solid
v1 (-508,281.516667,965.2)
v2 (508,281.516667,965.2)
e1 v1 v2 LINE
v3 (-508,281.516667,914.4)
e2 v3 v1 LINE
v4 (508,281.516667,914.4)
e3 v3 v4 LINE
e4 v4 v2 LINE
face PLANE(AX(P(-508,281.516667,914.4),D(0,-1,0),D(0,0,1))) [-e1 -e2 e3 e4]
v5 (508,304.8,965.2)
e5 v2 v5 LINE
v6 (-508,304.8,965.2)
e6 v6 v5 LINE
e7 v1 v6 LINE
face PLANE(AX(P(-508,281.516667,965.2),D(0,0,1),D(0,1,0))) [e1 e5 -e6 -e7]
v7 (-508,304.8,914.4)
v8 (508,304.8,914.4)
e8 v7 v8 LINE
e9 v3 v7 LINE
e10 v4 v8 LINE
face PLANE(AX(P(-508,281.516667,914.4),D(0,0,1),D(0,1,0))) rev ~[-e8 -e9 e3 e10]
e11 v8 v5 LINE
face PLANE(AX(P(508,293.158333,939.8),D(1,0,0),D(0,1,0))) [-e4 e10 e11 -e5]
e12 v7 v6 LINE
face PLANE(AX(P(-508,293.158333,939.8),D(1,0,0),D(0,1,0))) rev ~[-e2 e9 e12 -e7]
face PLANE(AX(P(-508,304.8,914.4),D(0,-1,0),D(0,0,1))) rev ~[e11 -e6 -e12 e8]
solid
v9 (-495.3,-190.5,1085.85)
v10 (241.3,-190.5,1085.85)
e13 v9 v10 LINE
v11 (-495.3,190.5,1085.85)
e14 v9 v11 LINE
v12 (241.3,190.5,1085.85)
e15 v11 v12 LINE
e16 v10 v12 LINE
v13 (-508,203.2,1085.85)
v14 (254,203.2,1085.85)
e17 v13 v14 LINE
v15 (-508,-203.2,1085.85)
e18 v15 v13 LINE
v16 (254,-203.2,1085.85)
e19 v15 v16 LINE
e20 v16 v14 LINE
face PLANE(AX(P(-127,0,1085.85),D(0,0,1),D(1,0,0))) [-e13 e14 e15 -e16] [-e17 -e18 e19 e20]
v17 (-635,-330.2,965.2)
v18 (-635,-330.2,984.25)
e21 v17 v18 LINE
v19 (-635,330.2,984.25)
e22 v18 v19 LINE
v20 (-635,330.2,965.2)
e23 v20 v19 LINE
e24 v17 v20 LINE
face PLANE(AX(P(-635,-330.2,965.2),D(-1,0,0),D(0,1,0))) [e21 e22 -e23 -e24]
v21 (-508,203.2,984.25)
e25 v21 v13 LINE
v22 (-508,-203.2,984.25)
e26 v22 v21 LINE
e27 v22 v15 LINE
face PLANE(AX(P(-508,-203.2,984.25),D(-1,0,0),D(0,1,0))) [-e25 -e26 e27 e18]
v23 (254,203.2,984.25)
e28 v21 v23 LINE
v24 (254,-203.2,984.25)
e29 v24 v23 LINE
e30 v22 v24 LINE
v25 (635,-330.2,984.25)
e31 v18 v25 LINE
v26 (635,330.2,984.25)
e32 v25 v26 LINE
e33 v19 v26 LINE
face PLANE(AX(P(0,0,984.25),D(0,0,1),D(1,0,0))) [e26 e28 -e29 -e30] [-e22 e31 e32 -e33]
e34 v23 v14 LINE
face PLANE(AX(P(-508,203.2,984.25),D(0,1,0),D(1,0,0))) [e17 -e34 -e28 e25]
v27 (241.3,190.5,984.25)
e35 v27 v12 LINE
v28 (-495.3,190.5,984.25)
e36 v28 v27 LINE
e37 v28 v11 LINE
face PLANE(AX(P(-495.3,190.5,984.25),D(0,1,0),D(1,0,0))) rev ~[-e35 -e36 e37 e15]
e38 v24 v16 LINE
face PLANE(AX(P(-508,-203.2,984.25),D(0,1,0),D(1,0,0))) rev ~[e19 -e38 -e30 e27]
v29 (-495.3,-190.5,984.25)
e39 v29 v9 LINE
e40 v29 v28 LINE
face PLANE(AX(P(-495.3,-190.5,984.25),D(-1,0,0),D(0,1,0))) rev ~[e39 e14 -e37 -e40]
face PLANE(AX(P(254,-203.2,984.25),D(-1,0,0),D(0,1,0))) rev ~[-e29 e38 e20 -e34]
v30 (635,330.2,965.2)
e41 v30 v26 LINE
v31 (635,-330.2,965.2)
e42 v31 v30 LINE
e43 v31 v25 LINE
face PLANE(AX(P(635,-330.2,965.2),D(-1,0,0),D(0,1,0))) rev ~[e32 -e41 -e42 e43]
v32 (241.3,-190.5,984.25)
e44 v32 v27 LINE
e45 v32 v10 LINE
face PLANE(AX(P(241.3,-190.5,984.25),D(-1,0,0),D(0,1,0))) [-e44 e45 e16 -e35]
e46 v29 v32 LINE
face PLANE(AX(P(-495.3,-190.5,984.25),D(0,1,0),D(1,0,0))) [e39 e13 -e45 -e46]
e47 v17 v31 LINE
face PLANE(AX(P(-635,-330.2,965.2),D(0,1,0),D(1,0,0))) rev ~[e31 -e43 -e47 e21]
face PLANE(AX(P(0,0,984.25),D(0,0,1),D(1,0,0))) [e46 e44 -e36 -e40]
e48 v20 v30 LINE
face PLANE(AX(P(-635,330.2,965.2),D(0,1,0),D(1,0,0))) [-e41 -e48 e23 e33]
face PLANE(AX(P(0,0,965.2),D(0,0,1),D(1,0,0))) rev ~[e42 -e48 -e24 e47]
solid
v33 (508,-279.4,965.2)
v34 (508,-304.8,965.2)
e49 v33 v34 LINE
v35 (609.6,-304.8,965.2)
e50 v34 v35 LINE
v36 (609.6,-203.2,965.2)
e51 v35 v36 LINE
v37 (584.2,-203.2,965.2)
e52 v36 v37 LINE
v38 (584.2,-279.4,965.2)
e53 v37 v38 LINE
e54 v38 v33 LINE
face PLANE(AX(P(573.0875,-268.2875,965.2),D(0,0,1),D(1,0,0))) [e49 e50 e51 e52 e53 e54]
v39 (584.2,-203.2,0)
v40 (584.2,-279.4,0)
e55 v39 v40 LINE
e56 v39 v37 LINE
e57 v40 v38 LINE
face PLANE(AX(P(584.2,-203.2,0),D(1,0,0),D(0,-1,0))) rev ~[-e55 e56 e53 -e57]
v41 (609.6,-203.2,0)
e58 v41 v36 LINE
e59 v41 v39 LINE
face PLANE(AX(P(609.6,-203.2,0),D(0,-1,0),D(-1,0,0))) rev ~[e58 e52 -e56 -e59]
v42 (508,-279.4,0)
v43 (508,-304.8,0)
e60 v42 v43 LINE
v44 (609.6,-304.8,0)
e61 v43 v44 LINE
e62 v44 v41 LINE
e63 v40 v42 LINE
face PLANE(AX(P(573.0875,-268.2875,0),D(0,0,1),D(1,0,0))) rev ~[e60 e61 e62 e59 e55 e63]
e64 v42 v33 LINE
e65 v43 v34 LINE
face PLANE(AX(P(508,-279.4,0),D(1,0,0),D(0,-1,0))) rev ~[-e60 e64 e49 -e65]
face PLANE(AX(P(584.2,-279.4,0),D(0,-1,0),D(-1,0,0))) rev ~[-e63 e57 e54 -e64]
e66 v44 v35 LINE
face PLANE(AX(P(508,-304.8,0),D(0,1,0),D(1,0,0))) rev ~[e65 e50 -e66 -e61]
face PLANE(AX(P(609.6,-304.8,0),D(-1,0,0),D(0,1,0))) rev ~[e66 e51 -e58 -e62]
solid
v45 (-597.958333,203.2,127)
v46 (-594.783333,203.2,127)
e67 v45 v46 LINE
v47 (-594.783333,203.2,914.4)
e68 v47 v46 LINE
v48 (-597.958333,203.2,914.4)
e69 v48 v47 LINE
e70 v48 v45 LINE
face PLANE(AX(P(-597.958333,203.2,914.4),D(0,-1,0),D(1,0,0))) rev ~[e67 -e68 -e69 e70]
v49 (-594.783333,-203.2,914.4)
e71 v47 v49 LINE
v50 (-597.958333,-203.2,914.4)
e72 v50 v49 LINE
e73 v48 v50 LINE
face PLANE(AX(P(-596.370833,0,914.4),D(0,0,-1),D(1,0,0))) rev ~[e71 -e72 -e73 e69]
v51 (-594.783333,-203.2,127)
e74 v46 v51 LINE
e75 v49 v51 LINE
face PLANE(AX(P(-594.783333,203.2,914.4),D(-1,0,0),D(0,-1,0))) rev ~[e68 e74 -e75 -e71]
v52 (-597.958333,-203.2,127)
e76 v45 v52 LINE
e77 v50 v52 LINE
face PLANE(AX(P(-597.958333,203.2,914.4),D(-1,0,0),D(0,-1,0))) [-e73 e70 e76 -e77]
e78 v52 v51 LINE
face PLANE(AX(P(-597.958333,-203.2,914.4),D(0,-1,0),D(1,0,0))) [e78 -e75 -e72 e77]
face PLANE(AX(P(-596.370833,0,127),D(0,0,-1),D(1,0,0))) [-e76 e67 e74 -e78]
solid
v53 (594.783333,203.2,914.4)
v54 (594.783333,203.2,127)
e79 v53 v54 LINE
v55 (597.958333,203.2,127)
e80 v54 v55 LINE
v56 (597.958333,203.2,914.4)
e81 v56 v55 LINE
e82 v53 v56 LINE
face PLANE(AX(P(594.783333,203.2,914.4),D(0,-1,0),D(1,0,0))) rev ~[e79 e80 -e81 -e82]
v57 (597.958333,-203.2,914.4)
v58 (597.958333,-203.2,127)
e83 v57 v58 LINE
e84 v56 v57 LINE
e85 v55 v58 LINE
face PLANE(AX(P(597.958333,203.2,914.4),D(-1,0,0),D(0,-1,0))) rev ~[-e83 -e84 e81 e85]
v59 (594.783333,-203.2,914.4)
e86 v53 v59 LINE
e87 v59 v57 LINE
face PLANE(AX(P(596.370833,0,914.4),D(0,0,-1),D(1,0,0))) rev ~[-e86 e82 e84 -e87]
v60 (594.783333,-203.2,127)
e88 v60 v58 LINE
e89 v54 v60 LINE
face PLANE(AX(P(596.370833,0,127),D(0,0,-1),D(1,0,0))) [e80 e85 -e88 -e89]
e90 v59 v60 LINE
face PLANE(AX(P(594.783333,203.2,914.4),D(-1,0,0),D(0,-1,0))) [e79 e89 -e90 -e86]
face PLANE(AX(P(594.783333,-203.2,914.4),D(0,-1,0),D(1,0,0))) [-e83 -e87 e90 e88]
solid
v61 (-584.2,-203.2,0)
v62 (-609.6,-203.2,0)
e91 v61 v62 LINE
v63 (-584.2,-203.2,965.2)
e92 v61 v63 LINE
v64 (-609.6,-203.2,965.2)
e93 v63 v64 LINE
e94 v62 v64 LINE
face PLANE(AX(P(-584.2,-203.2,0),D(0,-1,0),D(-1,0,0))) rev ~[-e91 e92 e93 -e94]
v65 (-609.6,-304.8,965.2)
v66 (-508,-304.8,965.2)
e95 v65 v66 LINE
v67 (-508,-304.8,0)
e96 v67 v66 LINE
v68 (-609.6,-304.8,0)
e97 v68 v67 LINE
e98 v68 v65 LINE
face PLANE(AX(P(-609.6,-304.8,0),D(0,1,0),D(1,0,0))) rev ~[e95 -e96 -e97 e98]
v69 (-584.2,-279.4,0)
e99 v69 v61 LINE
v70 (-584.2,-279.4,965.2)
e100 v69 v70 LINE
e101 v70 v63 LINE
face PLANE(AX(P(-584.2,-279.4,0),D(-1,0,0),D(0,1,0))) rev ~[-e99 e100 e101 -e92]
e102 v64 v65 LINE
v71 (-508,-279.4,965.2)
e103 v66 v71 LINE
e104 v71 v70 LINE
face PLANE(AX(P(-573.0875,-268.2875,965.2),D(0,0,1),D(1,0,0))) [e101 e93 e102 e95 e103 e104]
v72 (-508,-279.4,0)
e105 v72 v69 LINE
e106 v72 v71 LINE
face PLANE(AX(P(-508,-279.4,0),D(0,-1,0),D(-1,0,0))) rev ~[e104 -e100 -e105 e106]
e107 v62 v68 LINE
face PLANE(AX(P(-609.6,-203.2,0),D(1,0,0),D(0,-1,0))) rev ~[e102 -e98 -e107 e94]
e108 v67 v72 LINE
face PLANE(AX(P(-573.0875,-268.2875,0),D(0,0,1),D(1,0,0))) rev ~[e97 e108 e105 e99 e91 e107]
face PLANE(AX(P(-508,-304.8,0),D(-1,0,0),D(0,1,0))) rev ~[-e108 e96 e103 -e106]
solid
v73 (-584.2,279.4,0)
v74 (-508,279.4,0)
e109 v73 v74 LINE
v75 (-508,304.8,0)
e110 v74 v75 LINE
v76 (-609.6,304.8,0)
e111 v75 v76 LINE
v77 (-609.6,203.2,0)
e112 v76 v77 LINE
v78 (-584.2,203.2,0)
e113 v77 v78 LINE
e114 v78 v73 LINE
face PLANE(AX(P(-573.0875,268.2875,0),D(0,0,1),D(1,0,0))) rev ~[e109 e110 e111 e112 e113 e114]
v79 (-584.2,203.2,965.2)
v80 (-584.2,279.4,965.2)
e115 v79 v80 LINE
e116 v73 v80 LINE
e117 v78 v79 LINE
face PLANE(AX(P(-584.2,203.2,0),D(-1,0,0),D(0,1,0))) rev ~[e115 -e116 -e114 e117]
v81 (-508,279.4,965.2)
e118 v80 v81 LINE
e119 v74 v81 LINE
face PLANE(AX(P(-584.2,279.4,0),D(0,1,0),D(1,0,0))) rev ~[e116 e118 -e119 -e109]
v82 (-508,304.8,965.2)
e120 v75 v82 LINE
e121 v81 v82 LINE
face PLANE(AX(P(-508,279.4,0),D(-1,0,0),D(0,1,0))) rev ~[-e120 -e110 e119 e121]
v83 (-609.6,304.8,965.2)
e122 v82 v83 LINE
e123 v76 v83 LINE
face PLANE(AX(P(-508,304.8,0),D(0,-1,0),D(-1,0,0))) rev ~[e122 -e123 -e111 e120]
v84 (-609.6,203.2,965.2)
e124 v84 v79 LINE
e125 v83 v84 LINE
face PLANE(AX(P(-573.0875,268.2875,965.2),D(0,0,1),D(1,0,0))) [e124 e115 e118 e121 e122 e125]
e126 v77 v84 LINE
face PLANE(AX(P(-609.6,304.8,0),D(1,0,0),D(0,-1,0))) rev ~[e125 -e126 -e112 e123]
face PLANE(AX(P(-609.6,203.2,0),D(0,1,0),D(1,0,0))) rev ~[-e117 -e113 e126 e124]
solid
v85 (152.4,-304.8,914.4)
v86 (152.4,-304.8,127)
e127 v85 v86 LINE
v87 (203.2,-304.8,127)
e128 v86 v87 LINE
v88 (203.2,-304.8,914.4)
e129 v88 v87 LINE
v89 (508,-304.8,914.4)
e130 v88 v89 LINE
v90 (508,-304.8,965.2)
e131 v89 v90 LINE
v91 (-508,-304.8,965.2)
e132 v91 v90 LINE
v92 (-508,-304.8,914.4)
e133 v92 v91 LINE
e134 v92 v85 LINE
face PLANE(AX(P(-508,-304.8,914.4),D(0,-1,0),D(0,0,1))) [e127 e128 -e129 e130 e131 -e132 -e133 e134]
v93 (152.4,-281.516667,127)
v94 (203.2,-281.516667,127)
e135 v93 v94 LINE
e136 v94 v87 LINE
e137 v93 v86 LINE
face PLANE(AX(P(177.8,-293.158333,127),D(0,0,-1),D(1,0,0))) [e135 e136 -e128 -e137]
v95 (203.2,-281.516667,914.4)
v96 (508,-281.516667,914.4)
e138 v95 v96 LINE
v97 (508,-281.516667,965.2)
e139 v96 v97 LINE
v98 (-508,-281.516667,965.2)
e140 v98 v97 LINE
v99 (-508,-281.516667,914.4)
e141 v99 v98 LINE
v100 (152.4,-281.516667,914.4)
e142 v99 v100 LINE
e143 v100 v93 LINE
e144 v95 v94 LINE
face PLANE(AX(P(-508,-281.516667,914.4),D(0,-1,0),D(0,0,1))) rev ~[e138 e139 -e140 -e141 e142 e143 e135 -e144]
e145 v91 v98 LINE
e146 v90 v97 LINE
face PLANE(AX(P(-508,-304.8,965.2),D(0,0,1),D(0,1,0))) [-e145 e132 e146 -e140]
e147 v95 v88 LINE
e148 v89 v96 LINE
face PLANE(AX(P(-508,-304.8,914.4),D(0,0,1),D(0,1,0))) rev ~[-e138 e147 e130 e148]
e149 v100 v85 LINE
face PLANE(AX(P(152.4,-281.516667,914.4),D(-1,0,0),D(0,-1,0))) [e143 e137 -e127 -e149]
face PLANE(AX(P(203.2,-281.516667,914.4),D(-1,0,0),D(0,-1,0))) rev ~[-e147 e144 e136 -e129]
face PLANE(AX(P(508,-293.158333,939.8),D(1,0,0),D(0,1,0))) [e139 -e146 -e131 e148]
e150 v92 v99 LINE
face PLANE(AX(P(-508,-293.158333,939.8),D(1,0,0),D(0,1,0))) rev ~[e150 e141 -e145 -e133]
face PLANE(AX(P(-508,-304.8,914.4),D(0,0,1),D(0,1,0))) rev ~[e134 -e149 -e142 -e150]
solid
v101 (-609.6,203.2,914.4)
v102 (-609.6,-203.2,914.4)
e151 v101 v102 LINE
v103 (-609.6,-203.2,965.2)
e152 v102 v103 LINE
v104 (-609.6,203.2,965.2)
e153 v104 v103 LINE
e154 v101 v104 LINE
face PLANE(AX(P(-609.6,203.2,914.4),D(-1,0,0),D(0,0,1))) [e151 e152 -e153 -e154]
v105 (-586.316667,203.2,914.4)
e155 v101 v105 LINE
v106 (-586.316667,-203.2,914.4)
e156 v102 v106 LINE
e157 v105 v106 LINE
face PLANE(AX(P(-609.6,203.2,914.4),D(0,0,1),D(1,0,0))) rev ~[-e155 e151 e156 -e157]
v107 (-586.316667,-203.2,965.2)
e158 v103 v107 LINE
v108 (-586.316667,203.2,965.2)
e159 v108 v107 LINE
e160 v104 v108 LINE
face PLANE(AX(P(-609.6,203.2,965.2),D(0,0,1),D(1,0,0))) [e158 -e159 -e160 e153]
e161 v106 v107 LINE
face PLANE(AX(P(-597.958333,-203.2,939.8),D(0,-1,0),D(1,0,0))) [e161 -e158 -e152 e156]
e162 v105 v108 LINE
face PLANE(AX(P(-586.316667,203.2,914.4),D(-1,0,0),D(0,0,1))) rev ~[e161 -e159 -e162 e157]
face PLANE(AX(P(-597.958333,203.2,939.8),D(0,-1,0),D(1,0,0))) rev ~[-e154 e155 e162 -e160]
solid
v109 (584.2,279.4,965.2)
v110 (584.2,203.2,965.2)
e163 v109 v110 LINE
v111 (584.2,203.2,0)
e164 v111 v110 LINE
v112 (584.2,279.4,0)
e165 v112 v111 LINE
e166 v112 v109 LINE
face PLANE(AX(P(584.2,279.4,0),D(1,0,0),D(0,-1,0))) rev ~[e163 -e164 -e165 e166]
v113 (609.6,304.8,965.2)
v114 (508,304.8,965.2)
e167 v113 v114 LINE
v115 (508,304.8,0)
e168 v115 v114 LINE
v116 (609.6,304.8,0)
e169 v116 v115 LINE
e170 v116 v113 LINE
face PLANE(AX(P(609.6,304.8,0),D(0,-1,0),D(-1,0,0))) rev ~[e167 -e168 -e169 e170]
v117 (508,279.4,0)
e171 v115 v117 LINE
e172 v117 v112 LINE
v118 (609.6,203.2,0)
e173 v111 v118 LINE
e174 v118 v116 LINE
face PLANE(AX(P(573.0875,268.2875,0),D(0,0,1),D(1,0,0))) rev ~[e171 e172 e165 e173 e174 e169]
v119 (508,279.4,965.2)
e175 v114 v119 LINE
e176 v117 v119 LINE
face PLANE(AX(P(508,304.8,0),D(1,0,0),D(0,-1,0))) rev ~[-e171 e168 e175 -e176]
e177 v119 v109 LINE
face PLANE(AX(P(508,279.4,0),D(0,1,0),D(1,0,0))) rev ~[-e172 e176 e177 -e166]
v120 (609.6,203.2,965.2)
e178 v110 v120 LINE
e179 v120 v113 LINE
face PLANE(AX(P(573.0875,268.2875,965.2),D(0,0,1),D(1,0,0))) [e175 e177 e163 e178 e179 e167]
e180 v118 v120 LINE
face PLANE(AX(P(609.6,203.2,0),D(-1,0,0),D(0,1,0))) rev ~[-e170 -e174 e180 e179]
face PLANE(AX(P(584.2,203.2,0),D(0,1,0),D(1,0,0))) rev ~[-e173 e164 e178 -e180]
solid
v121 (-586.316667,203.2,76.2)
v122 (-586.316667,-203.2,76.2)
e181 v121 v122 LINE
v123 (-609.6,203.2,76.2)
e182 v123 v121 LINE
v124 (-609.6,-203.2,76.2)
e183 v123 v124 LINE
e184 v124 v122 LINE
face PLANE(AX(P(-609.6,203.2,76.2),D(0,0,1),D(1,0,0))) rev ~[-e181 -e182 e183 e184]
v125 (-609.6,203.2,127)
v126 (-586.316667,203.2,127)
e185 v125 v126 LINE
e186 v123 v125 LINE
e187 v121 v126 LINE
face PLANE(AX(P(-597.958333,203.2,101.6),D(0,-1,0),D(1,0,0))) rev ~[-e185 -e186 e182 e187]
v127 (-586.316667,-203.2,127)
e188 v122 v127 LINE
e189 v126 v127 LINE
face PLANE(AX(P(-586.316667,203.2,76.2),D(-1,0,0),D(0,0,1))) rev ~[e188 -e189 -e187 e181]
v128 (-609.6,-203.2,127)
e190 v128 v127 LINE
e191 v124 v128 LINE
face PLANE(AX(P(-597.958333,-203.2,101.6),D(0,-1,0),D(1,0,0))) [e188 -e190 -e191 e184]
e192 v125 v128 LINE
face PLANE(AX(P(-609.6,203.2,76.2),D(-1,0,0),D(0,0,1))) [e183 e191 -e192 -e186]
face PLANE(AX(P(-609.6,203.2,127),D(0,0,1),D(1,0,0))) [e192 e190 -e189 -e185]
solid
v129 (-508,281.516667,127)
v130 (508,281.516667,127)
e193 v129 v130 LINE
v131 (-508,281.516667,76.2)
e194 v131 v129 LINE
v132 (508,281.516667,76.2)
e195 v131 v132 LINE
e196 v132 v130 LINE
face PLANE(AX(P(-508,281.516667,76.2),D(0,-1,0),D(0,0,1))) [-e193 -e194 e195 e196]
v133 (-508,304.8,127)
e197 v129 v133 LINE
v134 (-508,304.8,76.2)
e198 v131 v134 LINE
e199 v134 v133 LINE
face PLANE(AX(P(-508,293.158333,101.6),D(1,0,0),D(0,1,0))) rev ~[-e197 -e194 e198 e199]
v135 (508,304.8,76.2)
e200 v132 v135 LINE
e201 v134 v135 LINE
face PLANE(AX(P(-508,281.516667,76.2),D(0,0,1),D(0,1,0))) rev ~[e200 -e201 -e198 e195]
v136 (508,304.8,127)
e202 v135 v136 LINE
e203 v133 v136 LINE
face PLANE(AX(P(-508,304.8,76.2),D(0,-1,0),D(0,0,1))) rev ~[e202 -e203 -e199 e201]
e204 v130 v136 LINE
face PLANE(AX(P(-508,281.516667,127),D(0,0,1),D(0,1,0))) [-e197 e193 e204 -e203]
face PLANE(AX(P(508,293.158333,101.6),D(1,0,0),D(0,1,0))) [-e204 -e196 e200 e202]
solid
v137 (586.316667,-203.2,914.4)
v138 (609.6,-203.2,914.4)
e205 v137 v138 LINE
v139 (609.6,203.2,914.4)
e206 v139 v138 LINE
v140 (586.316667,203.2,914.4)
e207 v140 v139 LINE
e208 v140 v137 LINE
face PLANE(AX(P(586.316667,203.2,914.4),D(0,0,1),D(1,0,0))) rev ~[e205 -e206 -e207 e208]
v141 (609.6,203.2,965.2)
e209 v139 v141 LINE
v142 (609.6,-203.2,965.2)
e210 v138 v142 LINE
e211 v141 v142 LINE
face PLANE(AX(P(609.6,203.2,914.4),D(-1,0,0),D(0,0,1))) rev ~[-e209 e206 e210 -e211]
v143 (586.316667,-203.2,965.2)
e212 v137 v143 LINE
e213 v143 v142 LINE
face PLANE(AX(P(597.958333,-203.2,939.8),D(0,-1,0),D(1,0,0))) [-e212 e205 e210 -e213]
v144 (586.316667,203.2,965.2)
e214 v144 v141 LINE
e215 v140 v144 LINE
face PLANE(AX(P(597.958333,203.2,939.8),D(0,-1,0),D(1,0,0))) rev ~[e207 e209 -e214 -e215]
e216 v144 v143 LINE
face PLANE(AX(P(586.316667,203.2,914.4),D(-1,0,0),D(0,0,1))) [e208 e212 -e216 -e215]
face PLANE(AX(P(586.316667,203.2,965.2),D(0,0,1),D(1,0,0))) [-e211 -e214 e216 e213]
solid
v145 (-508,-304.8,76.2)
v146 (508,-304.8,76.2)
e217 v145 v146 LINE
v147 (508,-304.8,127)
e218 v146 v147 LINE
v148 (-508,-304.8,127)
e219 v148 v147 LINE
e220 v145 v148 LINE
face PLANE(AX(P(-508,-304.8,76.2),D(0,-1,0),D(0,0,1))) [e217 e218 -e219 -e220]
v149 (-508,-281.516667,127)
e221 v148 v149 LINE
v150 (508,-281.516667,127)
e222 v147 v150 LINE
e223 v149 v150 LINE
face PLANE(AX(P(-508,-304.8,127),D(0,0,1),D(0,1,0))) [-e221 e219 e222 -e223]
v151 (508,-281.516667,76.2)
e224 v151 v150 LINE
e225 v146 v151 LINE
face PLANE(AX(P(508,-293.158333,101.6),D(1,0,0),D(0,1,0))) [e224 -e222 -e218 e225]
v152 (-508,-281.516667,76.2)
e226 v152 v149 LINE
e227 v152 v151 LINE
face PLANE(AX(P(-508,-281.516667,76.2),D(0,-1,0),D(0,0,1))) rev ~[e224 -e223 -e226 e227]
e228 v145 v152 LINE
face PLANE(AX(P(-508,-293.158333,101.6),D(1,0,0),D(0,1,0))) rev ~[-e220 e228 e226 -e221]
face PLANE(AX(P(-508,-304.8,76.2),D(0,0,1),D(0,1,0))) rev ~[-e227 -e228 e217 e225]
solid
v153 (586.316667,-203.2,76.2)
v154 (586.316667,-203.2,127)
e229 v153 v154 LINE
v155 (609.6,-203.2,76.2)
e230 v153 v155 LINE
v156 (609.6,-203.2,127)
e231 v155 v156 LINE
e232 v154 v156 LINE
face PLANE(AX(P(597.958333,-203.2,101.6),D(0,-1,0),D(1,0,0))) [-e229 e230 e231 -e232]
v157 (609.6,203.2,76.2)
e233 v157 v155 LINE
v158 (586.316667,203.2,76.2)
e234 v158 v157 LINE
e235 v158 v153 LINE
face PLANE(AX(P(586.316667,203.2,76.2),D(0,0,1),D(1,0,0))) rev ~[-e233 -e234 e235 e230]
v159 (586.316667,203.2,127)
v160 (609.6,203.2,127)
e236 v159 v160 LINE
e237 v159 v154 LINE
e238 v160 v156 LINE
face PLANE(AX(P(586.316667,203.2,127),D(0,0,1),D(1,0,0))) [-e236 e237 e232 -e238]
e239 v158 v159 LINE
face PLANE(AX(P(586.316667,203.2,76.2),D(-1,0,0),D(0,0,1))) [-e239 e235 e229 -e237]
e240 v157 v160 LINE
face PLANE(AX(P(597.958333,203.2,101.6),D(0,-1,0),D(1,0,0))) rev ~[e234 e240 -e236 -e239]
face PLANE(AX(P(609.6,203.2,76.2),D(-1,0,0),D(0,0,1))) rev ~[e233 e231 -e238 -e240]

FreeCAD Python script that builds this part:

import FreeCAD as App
import Part
import Sketcher
Q = App.Units.Quantity

doc = App.newDocument("Part")
body = doc.addObject("PartDesign::Body", "Body")

# Sketch on XY plane
sketch1 = body.newObject("Sketcher::SketchObject", "Sketch")
sketch1.AttachmentSupport = (doc.getObject("XY_Plane"), [""])
sketch1.MapMode = "FlatFace"
sketch1.addGeometry([
    Part.LineSegment(App.Vector(-508, 304.8, 0), App.Vector(-609.6, 304.8, 0)),  # 0
    Part.LineSegment(App.Vector(-609.6, 304.8, 0), App.Vector(-609.6, 203.2, 0)),  # 1
    Part.LineSegment(App.Vector(-609.6, 203.2, 0), App.Vector(-584.2, 203.2, 0)),  # 2
    Part.LineSegment(App.Vector(-584.2, 203.2, 0), App.Vector(-584.2, 279.4, 0)),  # 3
    Part.LineSegment(App.Vector(-584.2, 279.4, 0), App.Vector(-508, 279.4, 0)),  # 4
    Part.LineSegment(App.Vector(-508, 279.4, 0), App.Vector(-508, 304.8, 0)),  # 5
], False)
sketch1.addConstraint([
    Sketcher.Constraint("Coincident", 0, 2, 1, 1),
    Sketcher.Constraint("Coincident", 1, 2, 2, 1),
    Sketcher.Constraint("Coincident", 2, 2, 3, 1),
    Sketcher.Constraint("Coincident", 3, 2, 4, 1),
    Sketcher.Constraint("Coincident", 4, 2, 5, 1),
    Sketcher.Constraint("Coincident", 5, 2, 0, 1),
    Sketcher.Constraint("Horizontal", 0),
    Sketcher.Constraint("Vertical", 1),
    Sketcher.Constraint("Horizontal", 2),
    Sketcher.Constraint("Vertical", 3),
    Sketcher.Constraint("Horizontal", 4),
    Sketcher.Constraint("Vertical", 5),
    Sketcher.Constraint("Equal", 0, 1),
    Sketcher.Constraint("Equal", 4, 3),
    Sketcher.Constraint("DistanceX", 0, 2, 0, 1, Q("4 in")),
    Sketcher.Constraint("DistanceX", 2, 1, 2, 2, Q("1 in")),
    Sketcher.Constraint("DistanceX", 0, 2, -1, 1, Q("24 in")),
    Sketcher.Constraint("DistanceY", -1, 1, 0, 2, Q("12 in")),
])
pad1 = body.newObject("PartDesign::Pad", "Pad")
pad1.Profile = sketch1
pad1.Length = Q("38 in")
body2 = doc.addObject("PartDesign::Body", "Body001")

# Sketch on XY plane
sketch2 = body2.newObject("Sketcher::SketchObject", "Sketch001")
sketch2.AttachmentSupport = (doc.getObject("XY_Plane001"), [""])
sketch2.MapMode = "FlatFace"
sketch2.addGeometry([
    Part.LineSegment(App.Vector(609.6, 304.8, 0), App.Vector(508, 304.8, 0)),  # 0
    Part.LineSegment(App.Vector(508, 304.8, 0), App.Vector(508, 279.4, 0)),  # 1
    Part.LineSegment(App.Vector(508, 279.4, 0), App.Vector(584.2, 279.4, 0)),  # 2
    Part.LineSegment(App.Vector(584.2, 279.4, 0), App.Vector(584.2, 203.2, 0)),  # 3
    Part.LineSegment(App.Vector(584.2, 203.2, 0), App.Vector(609.6, 203.2, 0)),  # 4
    Part.LineSegment(App.Vector(609.6, 203.2, 0), App.Vector(609.6, 304.8, 0)),  # 5
], False)
sketch2.addConstraint([
    Sketcher.Constraint("Coincident", 0, 2, 1, 1),
    Sketcher.Constraint("Coincident", 1, 2, 2, 1),
    Sketcher.Constraint("Coincident", 2, 2, 3, 1),
    Sketcher.Constraint("Coincident", 3, 2, 4, 1),
    Sketcher.Constraint("Coincident", 4, 2, 5, 1),
    Sketcher.Constraint("Coincident", 5, 2, 0, 1),
    Sketcher.Constraint("Horizontal", 0),
    Sketcher.Constraint("Vertical", 1),
    Sketcher.Constraint("Horizontal", 2),
    Sketcher.Constraint("Vertical", 3),
    Sketcher.Constraint("Horizontal", 4),
    Sketcher.Constraint("Vertical", 5),
    Sketcher.Constraint("Equal", 4, 1),
    Sketcher.Constraint("Equal", 2, 3),
    Sketcher.Constraint("DistanceX", 0, 2, 0, 1, Q("4 in")),
    Sketcher.Constraint("DistanceX", 2, 1, 2, 2, Q("3 in")),
    Sketcher.Constraint("DistanceX", -1, 1, 0, 2, Q("20 in")),
    Sketcher.Constraint("DistanceY", -1, 1, 0, 2, Q("12 in")),
])
pad2 = body2.newObject("PartDesign::Pad", "Pad001")
pad2.Profile = sketch2
pad2.Length = Q("38 in")
body3 = doc.addObject("PartDesign::Body", "Body002")

# Sketch on XY plane
sketch3 = body3.newObject("Sketcher::SketchObject", "Sketch002")
sketch3.AttachmentSupport = (doc.getObject("XY_Plane002"), [""])
sketch3.MapMode = "FlatFace"
sketch3.addGeometry([
    Part.LineSegment(App.Vector(508, -279.4, 0), App.Vector(508, -304.8, 0)),  # 0
    Part.LineSegment(App.Vector(508, -304.8, 0), App.Vector(609.6, -304.8, 0)),  # 1
    Part.LineSegment(App.Vector(609.6, -304.8, 0), App.Vector(609.6, -203.2, 0)),  # 2
    Part.LineSegment(App.Vector(609.6, -203.2, 0), App.Vector(584.2, -203.2, 0)),  # 3
    Part.LineSegment(App.Vector(584.2, -203.2, 0), App.Vector(584.2, -279.4, 0)),  # 4
    Part.LineSegment(App.Vector(584.2, -279.4, 0), App.Vector(508, -279.4, 0)),  # 5
], False)
sketch3.addConstraint([
    Sketcher.Constraint("Coincident", 0, 2, 1, 1),
    Sketcher.Constraint("Coincident", 1, 2, 2, 1),
    Sketcher.Constraint("Coincident", 2, 2, 3, 1),
    Sketcher.Constraint("Coincident", 3, 2, 4, 1),
    Sketcher.Constraint("Coincident", 4, 2, 5, 1),
    Sketcher.Constraint("Coincident", 5, 2, 0, 1),
    Sketcher.Constraint("Vertical", 0),
    Sketcher.Constraint("Horizontal", 1),
    Sketcher.Constraint("Vertical", 2),
    Sketcher.Constraint("Horizontal", 3),
    Sketcher.Constraint("Vertical", 4),
    Sketcher.Constraint("Horizontal", 5),
    Sketcher.Constraint("Equal", 3, 0),
    Sketcher.Constraint("Equal", 1, 2),
    Sketcher.Constraint("DistanceX", 1, 1, 1, 2, Q("4 in")),
    Sketcher.Constraint("DistanceX", 3, 2, 3, 1, Q("1 in")),
    Sketcher.Constraint("DistanceX", -1, 1, 0, 2, Q("20 in")),
    Sketcher.Constraint("DistanceY", 0, 2, -1, 1, Q("12 in")),
])
pad3 = body3.newObject("PartDesign::Pad", "Pad002")
pad3.Profile = sketch3
pad3.Length = Q("38 in")
body4 = doc.addObject("PartDesign::Body", "Body003")

# Sketch on XY plane
sketch4 = body4.newObject("Sketcher::SketchObject", "Sketch003")
sketch4.AttachmentSupport = (doc.getObject("XY_Plane003"), [""])
sketch4.MapMode = "FlatFace"
sketch4.addGeometry([
    Part.LineSegment(App.Vector(-609.6, -304.8, 0), App.Vector(-508, -304.8, 0)),  # 0
    Part.LineSegment(App.Vector(-508, -304.8, 0), App.Vector(-508, -279.4, 0)),  # 1
    Part.LineSegment(App.Vector(-508, -279.4, 0), App.Vector(-584.2, -279.4, 0)),  # 2
    Part.LineSegment(App.Vector(-584.2, -279.4, 0), App.Vector(-584.2, -203.2, 0)),  # 3
    Part.LineSegment(App.Vector(-584.2, -203.2, 0), App.Vector(-609.6, -203.2, 0)),  # 4
    Part.LineSegment(App.Vector(-609.6, -203.2, 0), App.Vector(-609.6, -304.8, 0)),  # 5
], False)
sketch4.addConstraint([
    Sketcher.Constraint("Coincident", 0, 2, 1, 1),
    Sketcher.Constraint("Coincident", 1, 2, 2, 1),
    Sketcher.Constraint("Coincident", 2, 2, 3, 1),
    Sketcher.Constraint("Coincident", 3, 2, 4, 1),
    Sketcher.Constraint("Coincident", 4, 2, 5, 1),
    Sketcher.Constraint("Coincident", 5, 2, 0, 1),
    Sketcher.Constraint("Horizontal", 0),
    Sketcher.Constraint("Vertical", 1),
    Sketcher.Constraint("Horizontal", 2),
    Sketcher.Constraint("Vertical", 3),
    Sketcher.Constraint("Horizontal", 4),
    Sketcher.Constraint("Vertical", 5),
    Sketcher.Constraint("Equal", 4, 1),
    Sketcher.Constraint("Equal", 2, 3),
    Sketcher.Constraint("DistanceX", 0, 1, 0, 2, Q("4 in")),
    Sketcher.Constraint("DistanceX", 2, 2, 2, 1, Q("3 in")),
    Sketcher.Constraint("DistanceX", 0, 2, -1, 1, Q("20 in")),
    Sketcher.Constraint("DistanceY", 0, 2, -1, 1, Q("12 in")),
])
pad4 = body4.newObject("PartDesign::Pad", "Pad003")
pad4.Profile = sketch4
pad4.Length = Q("38 in")
body5 = doc.addObject("PartDesign::Body", "Body004")

# Sketch on XZ plane
sketch5 = body5.newObject("Sketcher::SketchObject", "Sketch004")
sketch5.AttachmentSupport = (doc.getObject("XZ_Plane004"), [""])
sketch5.MapMode = "FlatFace"
sketch5.AttachmentOffset = App.Placement(App.Vector(0, 0, -8 * 25.4), App.Rotation())
sketch5.addGeometry([
    Part.LineSegment(App.Vector(-609.6, 965.2, 0), App.Vector(-609.6, 914.4, 0)),
    Part.LineSegment(App.Vector(-609.6, 914.4, 0), App.Vector(-586.316667, 914.4, 0)),
    Part.LineSegment(App.Vector(-586.316667, 914.4, 0), App.Vector(-586.316667, 965.2, 0)),
    Part.LineSegment(App.Vector(-586.316667, 965.2, 0), App.Vector(-609.6, 965.2, 0)),
], False)
sketch5.addConstraint([
    Sketcher.Constraint("Coincident", 0, 2, 1, 1),
    Sketcher.Constraint("Coincident", 1, 2, 2, 1),
    Sketcher.Constraint("Coincident", 2, 2, 3, 1),
    Sketcher.Constraint("Coincident", 3, 2, 0, 1),
    Sketcher.Constraint("Vertical", 0),
    Sketcher.Constraint("Horizontal", 1),
    Sketcher.Constraint("Vertical", 2),
    Sketcher.Constraint("Horizontal", 3),
    Sketcher.Constraint("DistanceY", 0, 2, 0, 1, Q("2 in")),
    Sketcher.Constraint("DistanceX", 0, 2, -1, 1, Q("24 in")),
    Sketcher.Constraint("DistanceY", -1, 1, 0, 2, Q("36 in")),
    Sketcher.Constraint("DistanceX", 1, 1, 1, 2, Q("23.283333 mm")),
])
pad5 = body5.newObject("PartDesign::Pad", "Pad004")
pad5.Profile = sketch5
pad5.Length = Q("16 in")
body6 = doc.addObject("PartDesign::Body", "Body005")

# Sketch on XZ plane
sketch6 = body6.newObject("Sketcher::SketchObject", "Sketch005")
sketch6.AttachmentSupport = (doc.getObject("XZ_Plane005"), [""])
sketch6.MapMode = "FlatFace"
sketch6.AttachmentOffset = App.Placement(App.Vector(0, 0, -8 * 25.4), App.Rotation())
sketch6.addGeometry([
    Part.LineSegment(App.Vector(586.316667, 965.2, 0), App.Vector(586.316667, 914.4, 0)),
    Part.LineSegment(App.Vector(586.316667, 914.4, 0), App.Vector(609.6, 914.4, 0)),
    Part.LineSegment(App.Vector(609.6, 914.4, 0), App.Vector(609.6, 965.2, 0)),
    Part.LineSegment(App.Vector(609.6, 965.2, 0), App.Vector(586.316667, 965.2, 0)),
], False)
sketch6.addConstraint([
    Sketcher.Constraint("Coincident", 0, 2, 1, 1),
    Sketcher.Constraint("Coincident", 1, 2, 2, 1),
    Sketcher.Constraint("Coincident", 2, 2, 3, 1),
    Sketcher.Constraint("Coincident", 3, 2, 0, 1),
    Sketcher.Constraint("Vertical", 0),
    Sketcher.Constraint("Horizontal", 1),
    Sketcher.Constraint("Vertical", 2),
    Sketcher.Constraint("Horizontal", 3),
    Sketcher.Constraint("DistanceY", 0, 2, 0, 1, Q("2 in")),
    Sketcher.Constraint("DistanceY", -1, 1, 0, 2, Q("36 in")),
    Sketcher.Constraint("DistanceX", -1, 1, 1, 2, Q("24 in")),
    Sketcher.Constraint("DistanceX", 1, 1, 1, 2, Q("23.283333 mm")),
])
pad6 = body6.newObject("PartDesign::Pad", "Pad005")
pad6.Profile = sketch6
pad6.Length = Q("16 in")
body7 = doc.addObject("PartDesign::Body", "Body006")

# Sketch on XZ plane
sketch7 = body7.newObject("Sketcher::SketchObject", "Sketch006")
sketch7.AttachmentSupport = (doc.getObject("XZ_Plane006"), [""])
sketch7.MapMode = "FlatFace"
sketch7.AttachmentOffset = App.Placement(App.Vector(0, 0, -8 * 25.4), App.Rotation())
sketch7.addGeometry([
    Part.LineSegment(App.Vector(-609.6, 127, 0), App.Vector(-609.6, 76.2, 0)),
    Part.LineSegment(App.Vector(-609.6, 76.2, 0), App.Vector(-586.316667, 76.2, 0)),
    Part.LineSegment(App.Vector(-586.316667, 76.2, 0), App.Vector(-586.316667, 127, 0)),
    Part.LineSegment(App.Vector(-586.316667, 127, 0), App.Vector(-609.6, 127, 0)),
], False)
sketch7.addConstraint([
    Sketcher.Constraint("Coincident", 0, 2, 1, 1),
    Sketcher.Constraint("Coincident", 1, 2, 2, 1),
    Sketcher.Constraint("Coincident", 2, 2, 3, 1),
    Sketcher.Constraint("Coincident", 3, 2, 0, 1),
    Sketcher.Constraint("Vertical", 0),
    Sketcher.Constraint("Horizontal", 1),
    Sketcher.Constraint("Vertical", 2),
    Sketcher.Constraint("Horizontal", 3),
    Sketcher.Constraint("DistanceY", 0, 2, 0, 1, Q("2 in")),
    Sketcher.Constraint("DistanceX", 0, 2, -1, 1, Q("24 in")),
    Sketcher.Constraint("DistanceY", -1, 1, 0, 2, Q("3 in")),
    Sketcher.Constraint("DistanceX", 1, 1, 1, 2, Q("23.283333 mm")),
])
pad7 = body7.newObject("PartDesign::Pad", "Pad006")
pad7.Profile = sketch7
pad7.Length = Q("16 in")
body8 = doc.addObject("PartDesign::Body", "Body007")

# Sketch on XZ plane
sketch8 = body8.newObject("Sketcher::SketchObject", "Sketch007")
sketch8.AttachmentSupport = (doc.getObject("XZ_Plane007"), [""])
sketch8.MapMode = "FlatFace"
sketch8.AttachmentOffset = App.Placement(App.Vector(0, 0, -8 * 25.4), App.Rotation())
sketch8.addGeometry([
    Part.LineSegment(App.Vector(586.316667, 127, 0), App.Vector(586.316667, 76.2, 0)),
    Part.LineSegment(App.Vector(586.316667, 76.2, 0), App.Vector(609.6, 76.2, 0)),
    Part.LineSegment(App.Vector(609.6, 76.2, 0), App.Vector(609.6, 127, 0)),
    Part.LineSegment(App.Vector(609.6, 127, 0), App.Vector(586.316667, 127, 0)),
], False)
sketch8.addConstraint([
    Sketcher.Constraint("Coincident", 0, 2, 1, 1),
    Sketcher.Constraint("Coincident", 1, 2, 2, 1),
    Sketcher.Constraint("Coincident", 2, 2, 3, 1),
    Sketcher.Constraint("Coincident", 3, 2, 0, 1),
    Sketcher.Constraint("Vertical", 0),
    Sketcher.Constraint("Horizontal", 1),
    Sketcher.Constraint("Vertical", 2),
    Sketcher.Constraint("Horizontal", 3),
    Sketcher.Constraint("DistanceY", 0, 2, 0, 1, Q("2 in")),
    Sketcher.Constraint("DistanceY", -1, 1, 0, 2, Q("3 in")),
    Sketcher.Constraint("DistanceX", -1, 1, 1, 2, Q("24 in")),
    Sketcher.Constraint("DistanceX", 1, 1, 1, 2, Q("23.283333 mm")),
])
pad8 = body8.newObject("PartDesign::Pad", "Pad007")
pad8.Profile = sketch8
pad8.Length = Q("16 in")
body9 = doc.addObject("PartDesign::Body", "Body008")

# Sketch on YZ plane
sketch9 = body9.newObject("Sketcher::SketchObject", "Sketch008")
sketch9.AttachmentSupport = (doc.getObject("YZ_Plane008"), [""])
sketch9.MapMode = "FlatFace"
sketch9.AttachmentOffset = App.Placement(App.Vector(0, 0, -20 * 25.4), App.Rotation())
sketch9.addGeometry([
    Part.LineSegment(App.Vector(281.516667, 965.2, 0), App.Vector(281.516667, 914.4, 0)),
    Part.LineSegment(App.Vector(281.516667, 914.4, 0), App.Vector(304.8, 914.4, 0)),
    Part.LineSegment(App.Vector(304.8, 914.4, 0), App.Vector(304.8, 965.2, 0)),
    Part.LineSegment(App.Vector(304.8, 965.2, 0), App.Vector(281.516667, 965.2, 0)),
], False)
sketch9.addConstraint([
    Sketcher.Constraint("Coincident", 0, 2, 1, 1),
    Sketcher.Constraint("Coincident", 1, 2, 2, 1),
    Sketcher.Constraint("Coincident", 2, 2, 3, 1),
    Sketcher.Constraint("Coincident", 3, 2, 0, 1),
    Sketcher.Constraint("Vertical", 0),
    Sketcher.Constraint("Horizontal", 1),
    Sketcher.Constraint("Vertical", 2),
    Sketcher.Constraint("Horizontal", 3),
    Sketcher.Constraint("DistanceY", 0, 2, 0, 1, Q("2 in")),
    Sketcher.Constraint("DistanceY", -1, 1, 0, 2, Q("36 in")),
    Sketcher.Constraint("DistanceX", -1, 1, 1, 2, Q("12 in")),
    Sketcher.Constraint("DistanceX", 1, 1, 1, 2, Q("23.283333 mm")),
])
pad9 = body9.newObject("PartDesign::Pad", "Pad008")
pad9.Profile = sketch9
pad9.Length = Q("40 in")
body10 = doc.addObject("PartDesign::Body", "Body009")

# Sketch on YZ plane
sketch10 = body10.newObject("Sketcher::SketchObject", "Sketch009")
sketch10.AttachmentSupport = (doc.getObject("YZ_Plane009"), [""])
sketch10.MapMode = "FlatFace"
sketch10.AttachmentOffset = App.Placement(App.Vector(0, 0, -20 * 25.4), App.Rotation())
sketch10.addGeometry([
    Part.LineSegment(App.Vector(281.516667, 127, 0), App.Vector(281.516667, 76.2, 0)),
    Part.LineSegment(App.Vector(281.516667, 76.2, 0), App.Vector(304.8, 76.2, 0)),
    Part.LineSegment(App.Vector(304.8, 76.2, 0), App.Vector(304.8, 127, 0)),
    Part.LineSegment(App.Vector(304.8, 127, 0), App.Vector(281.516667, 127, 0)),
], False)
sketch10.addConstraint([
    Sketcher.Constraint("Coincident", 0, 2, 1, 1),
    Sketcher.Constraint("Coincident", 1, 2, 2, 1),
    Sketcher.Constraint("Coincident", 2, 2, 3, 1),
    Sketcher.Constraint("Coincident", 3, 2, 0, 1),
    Sketcher.Constraint("Vertical", 0),
    Sketcher.Constraint("Horizontal", 1),
    Sketcher.Constraint("Vertical", 2),
    Sketcher.Constraint("Horizontal", 3),
    Sketcher.Constraint("DistanceY", 0, 2, 0, 1, Q("2 in")),
    Sketcher.Constraint("DistanceY", -1, 1, 0, 2, Q("3 in")),
    Sketcher.Constraint("DistanceX", -1, 1, 1, 2, Q("12 in")),
    Sketcher.Constraint("DistanceX", 1, 1, 1, 2, Q("23.283333 mm")),
])
pad10 = body10.newObject("PartDesign::Pad", "Pad009")
pad10.Profile = sketch10
pad10.Length = Q("40 in")
body11 = doc.addObject("PartDesign::Body", "Body010")

# Sketch on YZ plane
sketch11 = body11.newObject("Sketcher::SketchObject", "Sketch010")
sketch11.AttachmentSupport = (doc.getObject("YZ_Plane010"), [""])
sketch11.MapMode = "FlatFace"
sketch11.AttachmentOffset = App.Placement(App.Vector(0, 0, -20 * 25.4), App.Rotation())
sketch11.addGeometry([
    Part.LineSegment(App.Vector(-304.8, 127, 0), App.Vector(-304.8, 76.2, 0)),
    Part.LineSegment(App.Vector(-304.8, 76.2, 0), App.Vector(-281.516667, 76.2, 0)),
    Part.LineSegment(App.Vector(-281.516667, 76.2, 0), App.Vector(-281.516667, 127, 0)),
    Part.LineSegment(App.Vector(-281.516667, 127, 0), App.Vector(-304.8, 127, 0)),
], False)
sketch11.addConstraint([
    Sketcher.Constraint("Coincident", 0, 2, 1, 1),
    Sketcher.Constraint("Coincident", 1, 2, 2, 1),
    Sketcher.Constraint("Coincident", 2, 2, 3, 1),
    Sketcher.Constraint("Coincident", 3, 2, 0, 1),
    Sketcher.Constraint("Vertical", 0),
    Sketcher.Constraint("Horizontal", 1),
    Sketcher.Constraint("Vertical", 2),
    Sketcher.Constraint("Horizontal", 3),
    Sketcher.Constraint("DistanceY", 0, 2, 0, 1, Q("2 in")),
    Sketcher.Constraint("DistanceX", 0, 2, -1, 1, Q("12 in")),
    Sketcher.Constraint("DistanceY", -1, 1, 0, 2, Q("3 in")),
    Sketcher.Constraint("DistanceX", 1, 1, 1, 2, Q("23.283333 mm")),
])
pad11 = body11.newObject("PartDesign::Pad", "Pad010")
pad11.Profile = sketch11
pad11.Length = Q("40 in")
body12 = doc.addObject("PartDesign::Body", "Body011")

# Sketch on YZ plane
sketch12 = body12.newObject("Sketcher::SketchObject", "Sketch011")
sketch12.AttachmentSupport = (doc.getObject("YZ_Plane011"), [""])
sketch12.MapMode = "FlatFace"
sketch12.AttachmentOffset = App.Placement(App.Vector(0, 0, -20 * 25.4), App.Rotation())
sketch12.addGeometry([
    Part.LineSegment(App.Vector(-304.8, 965.2, 0), App.Vector(-304.8, 914.4, 0)),
    Part.LineSegment(App.Vector(-304.8, 914.4, 0), App.Vector(-281.516667, 914.4, 0)),
    Part.LineSegment(App.Vector(-281.516667, 914.4, 0), App.Vector(-281.516667, 965.2, 0)),
    Part.LineSegment(App.Vector(-281.516667, 965.2, 0), App.Vector(-304.8, 965.2, 0)),
], False)
sketch12.addConstraint([
    Sketcher.Constraint("Coincident", 0, 2, 1, 1),
    Sketcher.Constraint("Coincident", 1, 2, 2, 1),
    Sketcher.Constraint("Coincident", 2, 2, 3, 1),
    Sketcher.Constraint("Coincident", 3, 2, 0, 1),
    Sketcher.Constraint("Vertical", 0),
    Sketcher.Constraint("Horizontal", 1),
    Sketcher.Constraint("Vertical", 2),
    Sketcher.Constraint("Horizontal", 3),
    Sketcher.Constraint("DistanceY", 0, 2, 0, 1, Q("2 in")),
    Sketcher.Constraint("DistanceX", 0, 2, -1, 1, Q("12 in")),
    Sketcher.Constraint("DistanceY", -1, 1, 0, 2, Q("36 in")),
    Sketcher.Constraint("DistanceX", 1, 1, 1, 2, Q("23.283333 mm")),
])
pad12 = body12.newObject("PartDesign::Pad", "Pad011")
pad12.Profile = sketch12
pad12.Length = Q("40 in")

# Sketch on XY plane
sketch13 = body12.newObject("Sketcher::SketchObject", "Sketch012")
sketch13.AttachmentSupport = (doc.getObject("XY_Plane011"), [""])
sketch13.MapMode = "FlatFace"
sketch13.AttachmentOffset = App.Placement(App.Vector(0, 0, 36 * 25.4), App.Rotation())
sketch13.addGeometry([
    Part.LineSegment(App.Vector(152.4, -304.8, 0), App.Vector(152.4, -281.516667, 0)),
    Part.LineSegment(App.Vector(152.4, -281.516667, 0), App.Vector(203.2, -281.516667, 0)),
    Part.LineSegment(App.Vector(203.2, -281.516667, 0), App.Vector(203.2, -304.8, 0)),
    Part.LineSegment(App.Vector(203.2, -304.8, 0), App.Vector(152.4, -304.8, 0)),
], False)
sketch13.addConstraint([
    Sketcher.Constraint("Coincident", 0, 2, 1, 1),
    Sketcher.Constraint("Coincident", 1, 2, 2, 1),
    Sketcher.Constraint("Coincident", 2, 2, 3, 1),
    Sketcher.Constraint("Coincident", 3, 2, 0, 1),
    Sketcher.Constraint("Vertical", 0),
    Sketcher.Constraint("Horizontal", 1),
    Sketcher.Constraint("Vertical", 2),
    Sketcher.Constraint("Horizontal", 3),
    Sketcher.Constraint("DistanceX", 1, 1, 1, 2, Q("2 in")),
    Sketcher.Constraint("DistanceX", -1, 1, 0, 2, Q("6 in")),
    Sketcher.Constraint("DistanceY", 2, 2, -1, 1, Q("12 in")),
    Sketcher.Constraint("DistanceY", 0, 1, 0, 2, Q("23.283333 mm")),
])
pad13 = body12.newObject("PartDesign::Pad", "Pad012")
pad13.Profile = sketch13
pad13.Length = Q("31 in")
pad13.Reversed = True
body13 = doc.addObject("PartDesign::Body", "Body012")

# Sketch on XY plane
sketch14 = body13.newObject("Sketcher::SketchObject", "Sketch013")
sketch14.AttachmentSupport = (doc.getObject("XY_Plane012"), [""])
sketch14.MapMode = "FlatFace"
sketch14.AttachmentOffset = App.Placement(App.Vector(0, 0, 38 * 25.4), App.Rotation())
sketch14.addGeometry([
    Part.LineSegment(App.Vector(-635, 330.2, 0), App.Vector(-635, -330.2, 0)),
    Part.LineSegment(App.Vector(-635, -330.2, 0), App.Vector(635, -330.2, 0)),
    Part.LineSegment(App.Vector(635, -330.2, 0), App.Vector(635, 330.2, 0)),
    Part.LineSegment(App.Vector(635, 330.2, 0), App.Vector(-635, 330.2, 0)),
], False)
sketch14.addConstraint([
    Sketcher.Constraint("Coincident", 0, 2, 1, 1),
    Sketcher.Constraint("Coincident", 1, 2, 2, 1),
    Sketcher.Constraint("Coincident", 2, 2, 3, 1),
    Sketcher.Constraint("Coincident", 3, 2, 0, 1),
    Sketcher.Constraint("Vertical", 0),
    Sketcher.Constraint("Horizontal", 1),
    Sketcher.Constraint("Vertical", 2),
    Sketcher.Constraint("Horizontal", 3),
    Sketcher.Constraint("Symmetric", 0, 2, 2, 2, -1, 1),
    Sketcher.Constraint("DistanceX", 1, 1, 1, 2, Q("50 in")),
    Sketcher.Constraint("DistanceY", 0, 2, 0, 1, Q("26 in")),
])
pad14 = body13.newObject("PartDesign::Pad", "Pad013")
pad14.Profile = sketch14
pad14.Length = Q("0.75 in")

# Sketch on XY plane
sketch15 = body13.newObject("Sketcher::SketchObject", "Sketch014")
sketch15.AttachmentSupport = (doc.getObject("XY_Plane012"), [""])
sketch15.MapMode = "FlatFace"
sketch15.AttachmentOffset = App.Placement(App.Vector(0, 0, 38.75 * 25.4), App.Rotation())
sketch15.addGeometry([
    Part.LineSegment(App.Vector(-508, 203.2, 0), App.Vector(-508, -203.2, 0)),  # 0
    Part.LineSegment(App.Vector(-508, -203.2, 0), App.Vector(254, -203.2, 0)),  # 1
    Part.LineSegment(App.Vector(254, -203.2, 0), App.Vector(254, 203.2, 0)),  # 2
    Part.LineSegment(App.Vector(254, 203.2, 0), App.Vector(-508, 203.2, 0)),  # 3
    Part.LineSegment(App.Vector(241.3, -190.5, 0), App.Vector(-495.3, -190.5, 0)),  # 4
    Part.LineSegment(App.Vector(-495.3, -190.5, 0), App.Vector(-495.3, 190.5, 0)),  # 5
    Part.LineSegment(App.Vector(-495.3, 190.5, 0), App.Vector(241.3, 190.5, 0)),  # 6
    Part.LineSegment(App.Vector(241.3, 190.5, 0), App.Vector(241.3, -190.5, 0)),  # 7
], False)
sketch15.addConstraint([
    Sketcher.Constraint("Coincident", 0, 2, 1, 1),
    Sketcher.Constraint("Coincident", 1, 2, 2, 1),
    Sketcher.Constraint("Coincident", 2, 2, 3, 1),
    Sketcher.Constraint("Coincident", 3, 2, 0, 1),
    Sketcher.Constraint("Coincident", 4, 2, 5, 1),
    Sketcher.Constraint("Coincident", 5, 2, 6, 1),
    Sketcher.Constraint("Coincident", 6, 2, 7, 1),
    Sketcher.Constraint("Coincident", 7, 2, 4, 1),
    Sketcher.Constraint("Vertical", 0),
    Sketcher.Constraint("Horizontal", 1),
    Sketcher.Constraint("Vertical", 2),
    Sketcher.Constraint("Horizontal", 3),
    Sketcher.Constraint("Horizontal", 4),
    Sketcher.Constraint("Vertical", 5),
    Sketcher.Constraint("Horizontal", 6),
    Sketcher.Constraint("Vertical", 7),
    Sketcher.Constraint("DistanceX", 1, 1, 1, 2, Q("30 in")),
    Sketcher.Constraint("DistanceX", 4, 2, 4, 1, Q("29 in")),
    Sketcher.Constraint("DistanceY", 0, 2, 0, 1, Q("16 in")),
    Sketcher.Constraint("DistanceY", 5, 1, 5, 2, Q("15 in")),
    Sketcher.Constraint("DistanceX", 0, 2, -1, 1, Q("20 in")),
    Sketcher.Constraint("DistanceY", 0, 2, -1, 1, Q("8 in")),
    Sketcher.Constraint("DistanceX", 4, 2, -1, 1, Q("19.5 in")),
    Sketcher.Constraint("DistanceY", 4, 2, -1, 1, Q("7.5 in")),
])
pad15 = body13.newObject("PartDesign::Pad", "Pad014")
pad15.Profile = sketch15
pad15.Length = Q("4 in")
body14 = doc.addObject("PartDesign::Body", "Body013")

# Sketch on XY plane
sketch16 = body14.newObject("Sketcher::SketchObject", "Sketch015")
sketch16.AttachmentSupport = (doc.getObject("XY_Plane013"), [""])
sketch16.MapMode = "FlatFace"
sketch16.AttachmentOffset = App.Placement(App.Vector(0, 0, 36 * 25.4), App.Rotation())
sketch16.addGeometry([
    Part.LineSegment(App.Vector(-597.958333, -203.2, 0), App.Vector(-597.958333, 203.2, 0)),
    Part.LineSegment(App.Vector(-597.958333, 203.2, 0), App.Vector(-594.783333, 203.2, 0)),
    Part.LineSegment(App.Vector(-594.783333, 203.2, 0), App.Vector(-594.783333, -203.2, 0)),
    Part.LineSegment(App.Vector(-594.783333, -203.2, 0), App.Vector(-597.958333, -203.2, 0)),
], False)
sketch16.addConstraint([
    Sketcher.Constraint("Coincident", 0, 2, 1, 1),
    Sketcher.Constraint("Coincident", 1, 2, 2, 1),
    Sketcher.Constraint("Coincident", 2, 2, 3, 1),
    Sketcher.Constraint("Coincident", 3, 2, 0, 1),
    Sketcher.Constraint("Vertical", 0),
    Sketcher.Constraint("Horizontal", 1),
    Sketcher.Constraint("Vertical", 2),
    Sketcher.Constraint("Horizontal", 3),
    Sketcher.Constraint("DistanceY", 0, 1, 0, 2, Q("16 in")),
    Sketcher.Constraint("DistanceY", -1, 1, 0, 2, Q("8 in")),
    Sketcher.Constraint("DistanceX", 1, 1, 1, 2, Q("0.125 in")),
    Sketcher.Constraint("DistanceX", 0, 2, -1, 1, Q("597.958333 mm")),
])
pad16 = body14.newObject("PartDesign::Pad", "Pad015")
pad16.Profile = sketch16
pad16.Length = Q("31 in")
pad16.Reversed = True
body15 = doc.addObject("PartDesign::Body", "Body014")

# Sketch on XY plane
sketch17 = body15.newObject("Sketcher::SketchObject", "Sketch016")
sketch17.AttachmentSupport = (doc.getObject("XY_Plane014"), [""])
sketch17.MapMode = "FlatFace"
sketch17.AttachmentOffset = App.Placement(App.Vector(0, 0, 36 * 25.4), App.Rotation())
sketch17.addGeometry([
    Part.LineSegment(App.Vector(594.783333, -203.2, 0), App.Vector(594.783333, 203.2, 0)),
    Part.LineSegment(App.Vector(594.783333, 203.2, 0), App.Vector(597.958333, 203.2, 0)),
    Part.LineSegment(App.Vector(597.958333, 203.2, 0), App.Vector(597.958333, -203.2, 0)),
    Part.LineSegment(App.Vector(597.958333, -203.2, 0), App.Vector(594.783333, -203.2, 0)),
], False)
sketch17.addConstraint([
    Sketcher.Constraint("Coincident", 0, 2, 1, 1),
    Sketcher.Constraint("Coincident", 1, 2, 2, 1),
    Sketcher.Constraint("Coincident", 2, 2, 3, 1),
    Sketcher.Constraint("Coincident", 3, 2, 0, 1),
    Sketcher.Constraint("Vertical", 0),
    Sketcher.Constraint("Horizontal", 1),
    Sketcher.Constraint("Vertical", 2),
    Sketcher.Constraint("Horizontal", 3),
    Sketcher.Constraint("DistanceY", 0, 1, 0, 2, Q("16 in")),
    Sketcher.Constraint("DistanceY", -1, 1, 0, 2, Q("8 in")),
    Sketcher.Constraint("DistanceX", 1, 1, 1, 2, Q("0.125 in")),
    Sketcher.Constraint("DistanceX", -1, 1, 0, 2, Q("594.783333 mm")),
])
pad17 = body15.newObject("PartDesign::Pad", "Pad016")
pad17.Profile = sketch17
pad17.Length = Q("31 in")
pad17.Reversed = True

doc.recompute()
